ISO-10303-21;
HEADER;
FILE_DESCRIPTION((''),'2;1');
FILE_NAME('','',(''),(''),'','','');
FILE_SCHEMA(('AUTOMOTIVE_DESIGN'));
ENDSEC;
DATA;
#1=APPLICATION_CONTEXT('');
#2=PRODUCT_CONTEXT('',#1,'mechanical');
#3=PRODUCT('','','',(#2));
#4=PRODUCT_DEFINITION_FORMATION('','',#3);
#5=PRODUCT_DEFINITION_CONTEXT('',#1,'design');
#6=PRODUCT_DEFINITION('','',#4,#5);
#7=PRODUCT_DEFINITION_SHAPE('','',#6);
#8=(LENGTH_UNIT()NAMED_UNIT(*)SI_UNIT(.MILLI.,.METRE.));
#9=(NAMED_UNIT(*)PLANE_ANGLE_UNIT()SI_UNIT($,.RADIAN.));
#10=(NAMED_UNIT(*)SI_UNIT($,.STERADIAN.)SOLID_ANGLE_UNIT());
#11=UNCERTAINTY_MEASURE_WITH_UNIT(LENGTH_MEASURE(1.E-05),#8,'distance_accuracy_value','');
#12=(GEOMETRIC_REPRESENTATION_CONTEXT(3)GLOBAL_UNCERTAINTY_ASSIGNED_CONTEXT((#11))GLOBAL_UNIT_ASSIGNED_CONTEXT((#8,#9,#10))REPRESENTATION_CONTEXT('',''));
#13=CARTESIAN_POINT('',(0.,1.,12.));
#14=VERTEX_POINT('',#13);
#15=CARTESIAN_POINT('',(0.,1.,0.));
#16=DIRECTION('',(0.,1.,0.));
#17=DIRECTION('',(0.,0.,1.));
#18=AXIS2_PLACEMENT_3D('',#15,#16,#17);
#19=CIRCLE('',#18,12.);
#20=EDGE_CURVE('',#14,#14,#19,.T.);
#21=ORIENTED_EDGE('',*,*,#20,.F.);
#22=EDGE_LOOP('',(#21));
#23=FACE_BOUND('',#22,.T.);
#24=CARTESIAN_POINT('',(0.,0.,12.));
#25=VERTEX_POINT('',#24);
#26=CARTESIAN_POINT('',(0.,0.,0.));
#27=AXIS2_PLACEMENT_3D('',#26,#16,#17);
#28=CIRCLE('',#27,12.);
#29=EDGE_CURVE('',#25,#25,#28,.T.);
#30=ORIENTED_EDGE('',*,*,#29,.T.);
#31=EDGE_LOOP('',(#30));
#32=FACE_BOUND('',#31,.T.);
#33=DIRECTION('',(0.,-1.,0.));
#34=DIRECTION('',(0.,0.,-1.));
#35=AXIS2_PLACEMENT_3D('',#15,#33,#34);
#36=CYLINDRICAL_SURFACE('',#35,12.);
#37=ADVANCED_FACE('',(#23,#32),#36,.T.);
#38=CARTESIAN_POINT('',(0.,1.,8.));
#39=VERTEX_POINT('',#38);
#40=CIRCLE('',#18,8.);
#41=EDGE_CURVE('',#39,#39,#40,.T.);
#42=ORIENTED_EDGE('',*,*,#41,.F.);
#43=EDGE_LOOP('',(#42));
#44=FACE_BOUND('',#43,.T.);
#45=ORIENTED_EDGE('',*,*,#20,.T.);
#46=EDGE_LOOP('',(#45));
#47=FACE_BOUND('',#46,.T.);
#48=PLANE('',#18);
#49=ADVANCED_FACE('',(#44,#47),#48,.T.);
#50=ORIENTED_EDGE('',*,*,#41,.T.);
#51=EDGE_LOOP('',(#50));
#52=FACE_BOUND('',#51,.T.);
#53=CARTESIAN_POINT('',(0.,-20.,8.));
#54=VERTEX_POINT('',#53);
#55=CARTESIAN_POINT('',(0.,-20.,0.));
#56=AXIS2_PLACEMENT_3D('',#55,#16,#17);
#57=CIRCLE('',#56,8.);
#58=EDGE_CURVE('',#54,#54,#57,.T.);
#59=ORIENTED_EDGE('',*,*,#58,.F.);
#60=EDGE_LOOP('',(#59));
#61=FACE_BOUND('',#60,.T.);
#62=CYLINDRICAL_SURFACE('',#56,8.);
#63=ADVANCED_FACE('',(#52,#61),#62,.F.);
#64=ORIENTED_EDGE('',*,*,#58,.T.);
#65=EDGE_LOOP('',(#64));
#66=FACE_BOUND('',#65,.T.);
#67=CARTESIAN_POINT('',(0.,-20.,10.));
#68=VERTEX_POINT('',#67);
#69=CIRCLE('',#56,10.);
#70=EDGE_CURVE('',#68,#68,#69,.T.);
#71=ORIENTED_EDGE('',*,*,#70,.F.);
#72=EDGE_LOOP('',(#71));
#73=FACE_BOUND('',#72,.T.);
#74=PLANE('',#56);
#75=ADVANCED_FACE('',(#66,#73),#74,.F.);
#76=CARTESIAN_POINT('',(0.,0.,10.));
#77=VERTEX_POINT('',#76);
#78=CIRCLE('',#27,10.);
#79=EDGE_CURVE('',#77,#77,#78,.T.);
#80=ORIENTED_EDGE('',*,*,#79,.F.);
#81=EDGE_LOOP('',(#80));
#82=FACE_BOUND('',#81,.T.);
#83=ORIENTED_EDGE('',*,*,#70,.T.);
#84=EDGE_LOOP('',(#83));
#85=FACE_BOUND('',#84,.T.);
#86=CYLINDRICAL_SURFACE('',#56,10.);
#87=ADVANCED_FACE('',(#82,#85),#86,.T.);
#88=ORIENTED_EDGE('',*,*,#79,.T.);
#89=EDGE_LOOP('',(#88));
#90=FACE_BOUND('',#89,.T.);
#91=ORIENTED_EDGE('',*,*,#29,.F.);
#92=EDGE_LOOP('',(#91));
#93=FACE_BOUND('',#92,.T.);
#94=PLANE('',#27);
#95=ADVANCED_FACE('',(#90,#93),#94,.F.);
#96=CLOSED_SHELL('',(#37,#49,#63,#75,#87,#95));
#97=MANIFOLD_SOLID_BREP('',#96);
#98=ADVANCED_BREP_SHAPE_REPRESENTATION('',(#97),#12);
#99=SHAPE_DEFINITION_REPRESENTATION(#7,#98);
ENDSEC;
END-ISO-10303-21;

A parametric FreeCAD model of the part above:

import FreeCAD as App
import Part
import Sketcher
Q = App.Units.Quantity

doc = App.newDocument("Part")
body = doc.addObject("PartDesign::Body", "Body")

# Sketch on XZ plane
sketch1 = body.newObject("Sketcher::SketchObject", "Sketch")
sketch1.AttachmentSupport = (doc.getObject("XZ_Plane"), [""])
sketch1.MapMode = "FlatFace"
sketch1.addGeometry([
    Part.Circle(App.Vector(0, 0, 0), App.Vector(0, 0, 1), 10),
    Part.Circle(App.Vector(0, 0, 0), App.Vector(0, 0, 1), 8),
], False)
sketch1.addConstraint([
    Sketcher.Constraint("Coincident", 0, 3, -1, 1),
    Sketcher.Constraint("Coincident", 1, 3, -1, 1),
    Sketcher.Constraint("Diameter", 0, Q("20 mm")),
    Sketcher.Constraint("Diameter", 1, Q("16 mm")),
])
pad1 = body.newObject("PartDesign::Pad", "Pad")
pad1.Profile = sketch1
pad1.Length = 20

# Sketch on XZ plane
sketch2 = body.newObject("Sketcher::SketchObject", "Sketch001")
sketch2.AttachmentSupport = (doc.getObject("XZ_Plane"), [""])
sketch2.MapMode = "FlatFace"
sketch2.AttachmentOffset = App.Placement(App.Vector(0, 0, -1), App.Rotation())
sketch2.addGeometry([
    Part.Circle(App.Vector(0, 0, 0), App.Vector(0, 0, 1), 12),
    Part.Circle(App.Vector(0, 0, 0), App.Vector(0, 0, 1), 8),
], False)
sketch2.addConstraint([
    Sketcher.Constraint("Coincident", 0, 3, -1, 1),
    Sketcher.Constraint("Coincident", 1, 3, -1, 1),
    Sketcher.Constraint("Diameter", 0, Q("24 mm")),
    Sketcher.Constraint("Diameter", 1, Q("16 mm")),
])
pad2 = body.newObject("PartDesign::Pad", "Pad001")
pad2.Profile = sketch2
pad2.Length = 1

doc.recompute()
